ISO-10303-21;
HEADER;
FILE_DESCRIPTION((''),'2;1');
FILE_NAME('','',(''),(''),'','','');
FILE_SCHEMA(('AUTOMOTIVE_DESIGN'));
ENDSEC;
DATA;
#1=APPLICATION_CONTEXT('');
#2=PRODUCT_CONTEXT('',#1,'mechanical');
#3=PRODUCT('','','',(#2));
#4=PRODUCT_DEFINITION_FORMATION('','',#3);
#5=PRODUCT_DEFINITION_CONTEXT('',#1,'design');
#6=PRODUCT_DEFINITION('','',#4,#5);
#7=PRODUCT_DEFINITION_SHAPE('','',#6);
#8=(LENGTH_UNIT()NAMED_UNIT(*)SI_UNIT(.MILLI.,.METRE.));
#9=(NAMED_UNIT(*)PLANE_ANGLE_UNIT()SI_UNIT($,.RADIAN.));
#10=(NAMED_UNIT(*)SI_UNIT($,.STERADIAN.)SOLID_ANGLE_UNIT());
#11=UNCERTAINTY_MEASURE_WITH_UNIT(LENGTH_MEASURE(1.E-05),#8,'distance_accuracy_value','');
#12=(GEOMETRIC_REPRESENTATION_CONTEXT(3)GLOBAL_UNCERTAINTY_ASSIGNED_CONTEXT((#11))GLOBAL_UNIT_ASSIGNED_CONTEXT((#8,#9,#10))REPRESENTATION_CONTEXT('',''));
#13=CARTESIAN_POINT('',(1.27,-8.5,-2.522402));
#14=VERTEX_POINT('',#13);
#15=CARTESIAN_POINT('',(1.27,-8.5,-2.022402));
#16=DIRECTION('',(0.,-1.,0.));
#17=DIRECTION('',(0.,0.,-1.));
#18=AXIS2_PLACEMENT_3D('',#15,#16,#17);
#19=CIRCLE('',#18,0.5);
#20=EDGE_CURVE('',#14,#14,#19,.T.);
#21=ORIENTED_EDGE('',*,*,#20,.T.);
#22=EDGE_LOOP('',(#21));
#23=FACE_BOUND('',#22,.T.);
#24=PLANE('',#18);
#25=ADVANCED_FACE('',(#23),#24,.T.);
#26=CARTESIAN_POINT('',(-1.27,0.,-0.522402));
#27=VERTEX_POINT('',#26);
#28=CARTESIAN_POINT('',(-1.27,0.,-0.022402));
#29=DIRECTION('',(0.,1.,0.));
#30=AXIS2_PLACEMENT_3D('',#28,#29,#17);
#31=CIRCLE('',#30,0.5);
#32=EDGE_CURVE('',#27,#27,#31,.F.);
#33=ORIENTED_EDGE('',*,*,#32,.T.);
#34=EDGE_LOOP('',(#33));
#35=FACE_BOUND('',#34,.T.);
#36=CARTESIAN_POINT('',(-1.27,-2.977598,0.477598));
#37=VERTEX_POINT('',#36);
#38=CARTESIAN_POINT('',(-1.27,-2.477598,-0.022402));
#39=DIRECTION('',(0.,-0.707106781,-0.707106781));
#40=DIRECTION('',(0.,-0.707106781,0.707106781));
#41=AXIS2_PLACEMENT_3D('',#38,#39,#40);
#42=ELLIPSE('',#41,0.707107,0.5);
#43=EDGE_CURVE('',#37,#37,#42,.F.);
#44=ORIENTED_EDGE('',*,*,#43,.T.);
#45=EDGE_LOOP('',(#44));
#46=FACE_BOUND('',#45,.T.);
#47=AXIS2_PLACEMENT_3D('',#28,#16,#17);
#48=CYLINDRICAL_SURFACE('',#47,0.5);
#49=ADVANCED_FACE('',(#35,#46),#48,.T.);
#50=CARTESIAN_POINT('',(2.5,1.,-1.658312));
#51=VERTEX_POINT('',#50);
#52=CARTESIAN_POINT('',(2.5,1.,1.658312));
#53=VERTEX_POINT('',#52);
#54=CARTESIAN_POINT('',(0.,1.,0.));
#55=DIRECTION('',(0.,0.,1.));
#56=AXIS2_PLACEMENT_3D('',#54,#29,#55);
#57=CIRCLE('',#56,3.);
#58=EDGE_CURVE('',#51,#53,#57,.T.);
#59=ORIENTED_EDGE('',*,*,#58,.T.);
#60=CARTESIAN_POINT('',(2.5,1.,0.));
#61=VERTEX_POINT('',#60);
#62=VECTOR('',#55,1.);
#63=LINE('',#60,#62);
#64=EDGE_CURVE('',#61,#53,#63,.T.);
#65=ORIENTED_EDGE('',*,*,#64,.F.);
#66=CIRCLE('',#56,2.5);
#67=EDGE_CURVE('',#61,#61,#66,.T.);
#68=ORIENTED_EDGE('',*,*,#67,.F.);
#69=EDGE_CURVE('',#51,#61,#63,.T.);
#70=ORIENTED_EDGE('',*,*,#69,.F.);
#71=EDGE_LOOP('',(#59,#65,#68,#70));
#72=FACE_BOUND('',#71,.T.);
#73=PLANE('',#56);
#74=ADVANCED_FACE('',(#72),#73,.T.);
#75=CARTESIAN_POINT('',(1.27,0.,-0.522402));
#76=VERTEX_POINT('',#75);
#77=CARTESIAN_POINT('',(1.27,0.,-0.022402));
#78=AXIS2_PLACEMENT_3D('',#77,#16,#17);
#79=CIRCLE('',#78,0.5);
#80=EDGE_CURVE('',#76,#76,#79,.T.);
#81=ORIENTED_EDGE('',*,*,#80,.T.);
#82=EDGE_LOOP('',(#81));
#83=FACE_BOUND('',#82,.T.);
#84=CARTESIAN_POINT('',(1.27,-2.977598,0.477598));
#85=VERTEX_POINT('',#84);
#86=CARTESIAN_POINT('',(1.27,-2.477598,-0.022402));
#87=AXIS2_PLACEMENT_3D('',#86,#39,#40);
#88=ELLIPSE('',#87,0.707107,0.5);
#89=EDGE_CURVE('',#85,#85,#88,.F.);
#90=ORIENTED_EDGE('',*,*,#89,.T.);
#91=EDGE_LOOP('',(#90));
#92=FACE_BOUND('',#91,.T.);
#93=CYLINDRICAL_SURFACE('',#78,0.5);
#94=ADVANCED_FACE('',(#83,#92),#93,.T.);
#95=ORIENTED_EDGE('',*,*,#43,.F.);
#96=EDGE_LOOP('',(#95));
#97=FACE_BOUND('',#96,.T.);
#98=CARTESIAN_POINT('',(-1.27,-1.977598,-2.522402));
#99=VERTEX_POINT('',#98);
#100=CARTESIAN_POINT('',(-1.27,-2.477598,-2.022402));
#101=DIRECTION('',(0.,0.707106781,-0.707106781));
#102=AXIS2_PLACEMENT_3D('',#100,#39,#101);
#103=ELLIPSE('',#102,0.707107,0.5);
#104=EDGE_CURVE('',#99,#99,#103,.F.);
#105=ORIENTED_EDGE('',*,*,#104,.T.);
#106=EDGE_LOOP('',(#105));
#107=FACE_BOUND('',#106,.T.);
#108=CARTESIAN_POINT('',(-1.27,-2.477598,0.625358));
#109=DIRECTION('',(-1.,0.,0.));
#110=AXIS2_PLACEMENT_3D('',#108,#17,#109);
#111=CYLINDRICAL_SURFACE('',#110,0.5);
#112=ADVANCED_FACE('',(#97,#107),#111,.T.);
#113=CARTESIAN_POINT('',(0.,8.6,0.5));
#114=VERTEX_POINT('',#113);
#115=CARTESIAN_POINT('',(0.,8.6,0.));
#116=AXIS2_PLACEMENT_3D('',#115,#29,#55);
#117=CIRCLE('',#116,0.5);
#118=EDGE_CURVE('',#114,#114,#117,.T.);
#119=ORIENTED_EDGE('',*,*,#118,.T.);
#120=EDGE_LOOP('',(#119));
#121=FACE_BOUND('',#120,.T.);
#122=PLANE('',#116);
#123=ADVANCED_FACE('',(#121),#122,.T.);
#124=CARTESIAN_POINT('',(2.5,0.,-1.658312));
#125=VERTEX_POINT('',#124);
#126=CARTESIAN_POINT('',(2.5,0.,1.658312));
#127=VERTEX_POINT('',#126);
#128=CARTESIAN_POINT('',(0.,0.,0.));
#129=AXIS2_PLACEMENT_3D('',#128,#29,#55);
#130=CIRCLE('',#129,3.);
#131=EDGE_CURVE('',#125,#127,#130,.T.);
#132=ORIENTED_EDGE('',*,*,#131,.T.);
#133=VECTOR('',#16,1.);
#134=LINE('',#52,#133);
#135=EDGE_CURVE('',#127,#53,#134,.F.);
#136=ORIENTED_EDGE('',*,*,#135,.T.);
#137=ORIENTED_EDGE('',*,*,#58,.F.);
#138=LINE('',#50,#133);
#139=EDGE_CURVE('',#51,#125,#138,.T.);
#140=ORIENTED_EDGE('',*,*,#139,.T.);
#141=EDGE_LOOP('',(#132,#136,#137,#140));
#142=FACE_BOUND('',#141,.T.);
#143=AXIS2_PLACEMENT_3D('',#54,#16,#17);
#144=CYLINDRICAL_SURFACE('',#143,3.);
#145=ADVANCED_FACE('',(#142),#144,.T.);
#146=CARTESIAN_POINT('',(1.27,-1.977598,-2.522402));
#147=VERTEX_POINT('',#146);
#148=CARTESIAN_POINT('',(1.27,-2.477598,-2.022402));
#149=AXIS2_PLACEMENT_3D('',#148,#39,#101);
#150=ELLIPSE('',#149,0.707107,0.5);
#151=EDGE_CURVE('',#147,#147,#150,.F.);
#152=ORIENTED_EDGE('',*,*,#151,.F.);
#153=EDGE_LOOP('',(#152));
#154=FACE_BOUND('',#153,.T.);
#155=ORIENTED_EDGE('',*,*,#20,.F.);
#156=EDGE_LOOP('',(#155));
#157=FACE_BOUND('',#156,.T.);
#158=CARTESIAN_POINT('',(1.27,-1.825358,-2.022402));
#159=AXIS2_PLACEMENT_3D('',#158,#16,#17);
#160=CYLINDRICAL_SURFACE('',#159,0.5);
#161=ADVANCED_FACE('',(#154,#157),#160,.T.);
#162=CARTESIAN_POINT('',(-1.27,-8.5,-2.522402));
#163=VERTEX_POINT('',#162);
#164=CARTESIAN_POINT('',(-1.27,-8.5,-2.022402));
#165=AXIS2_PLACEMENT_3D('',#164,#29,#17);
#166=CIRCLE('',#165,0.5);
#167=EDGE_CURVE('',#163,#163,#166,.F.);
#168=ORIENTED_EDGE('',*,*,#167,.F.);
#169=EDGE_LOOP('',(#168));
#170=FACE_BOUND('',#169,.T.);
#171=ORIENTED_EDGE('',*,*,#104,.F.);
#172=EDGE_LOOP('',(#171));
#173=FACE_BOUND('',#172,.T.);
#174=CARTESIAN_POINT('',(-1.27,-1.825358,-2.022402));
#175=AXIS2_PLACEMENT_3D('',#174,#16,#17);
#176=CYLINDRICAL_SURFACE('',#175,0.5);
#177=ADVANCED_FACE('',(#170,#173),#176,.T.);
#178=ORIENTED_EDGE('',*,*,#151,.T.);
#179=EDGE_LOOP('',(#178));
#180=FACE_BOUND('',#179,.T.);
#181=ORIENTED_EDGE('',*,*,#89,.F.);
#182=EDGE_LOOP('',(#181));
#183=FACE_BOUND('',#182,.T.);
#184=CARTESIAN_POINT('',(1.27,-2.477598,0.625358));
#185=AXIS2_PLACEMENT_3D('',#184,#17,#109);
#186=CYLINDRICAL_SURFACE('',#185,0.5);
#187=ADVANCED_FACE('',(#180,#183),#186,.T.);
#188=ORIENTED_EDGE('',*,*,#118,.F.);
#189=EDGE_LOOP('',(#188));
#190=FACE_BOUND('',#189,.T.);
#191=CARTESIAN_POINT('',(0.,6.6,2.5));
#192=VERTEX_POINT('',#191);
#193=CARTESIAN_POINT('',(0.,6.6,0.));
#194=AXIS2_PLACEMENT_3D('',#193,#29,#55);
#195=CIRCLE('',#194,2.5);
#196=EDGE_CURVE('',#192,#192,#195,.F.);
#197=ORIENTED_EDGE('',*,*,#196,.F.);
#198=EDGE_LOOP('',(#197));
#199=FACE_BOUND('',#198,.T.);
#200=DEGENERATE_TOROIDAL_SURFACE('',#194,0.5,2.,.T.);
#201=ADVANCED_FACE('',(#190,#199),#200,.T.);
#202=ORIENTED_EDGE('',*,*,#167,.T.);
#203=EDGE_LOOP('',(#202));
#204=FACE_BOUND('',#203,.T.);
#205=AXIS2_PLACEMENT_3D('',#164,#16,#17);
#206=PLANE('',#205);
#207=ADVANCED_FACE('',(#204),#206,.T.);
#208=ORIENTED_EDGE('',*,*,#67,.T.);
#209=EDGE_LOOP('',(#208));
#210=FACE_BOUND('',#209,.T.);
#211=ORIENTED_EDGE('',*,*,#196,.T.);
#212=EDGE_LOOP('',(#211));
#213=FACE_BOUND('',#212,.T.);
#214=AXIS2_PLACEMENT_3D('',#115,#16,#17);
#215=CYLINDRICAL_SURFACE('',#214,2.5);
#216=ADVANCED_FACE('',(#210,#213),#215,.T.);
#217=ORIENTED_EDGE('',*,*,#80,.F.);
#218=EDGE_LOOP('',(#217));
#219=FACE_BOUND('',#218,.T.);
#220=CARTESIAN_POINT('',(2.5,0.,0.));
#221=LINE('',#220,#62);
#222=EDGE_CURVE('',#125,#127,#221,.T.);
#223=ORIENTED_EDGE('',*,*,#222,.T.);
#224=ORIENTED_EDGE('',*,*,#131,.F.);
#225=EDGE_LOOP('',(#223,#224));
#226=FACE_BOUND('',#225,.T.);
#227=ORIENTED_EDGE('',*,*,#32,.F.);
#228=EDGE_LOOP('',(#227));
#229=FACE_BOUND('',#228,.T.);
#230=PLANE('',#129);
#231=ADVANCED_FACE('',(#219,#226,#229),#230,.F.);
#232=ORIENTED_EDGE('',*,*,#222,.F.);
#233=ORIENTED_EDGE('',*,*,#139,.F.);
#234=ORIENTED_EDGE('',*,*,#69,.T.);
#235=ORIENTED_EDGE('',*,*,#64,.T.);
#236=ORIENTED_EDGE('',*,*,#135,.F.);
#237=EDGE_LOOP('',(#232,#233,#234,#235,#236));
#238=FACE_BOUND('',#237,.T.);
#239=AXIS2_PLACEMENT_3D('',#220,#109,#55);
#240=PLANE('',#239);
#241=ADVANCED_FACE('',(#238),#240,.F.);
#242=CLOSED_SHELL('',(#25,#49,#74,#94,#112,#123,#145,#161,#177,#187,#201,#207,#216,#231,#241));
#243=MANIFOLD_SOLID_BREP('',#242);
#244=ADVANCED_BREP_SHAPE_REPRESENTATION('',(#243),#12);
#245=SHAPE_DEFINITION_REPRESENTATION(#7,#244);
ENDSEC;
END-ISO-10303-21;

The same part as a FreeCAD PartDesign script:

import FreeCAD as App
import Part
import Sketcher
from FreeCAD import Vector
Q = App.Units.Quantity


def edges_at(feature, points):
    """Names of the edges that pass closest to the given points."""
    edges = feature.Shape.Edges
    near = lambda p: min(range(len(edges)), key=lambda i: edges[i].distToShape(Part.Vertex(*p))[0])
    return sorted({f"Edge{near(p) + 1}" for p in points})

doc = App.newDocument("Part")
params = doc.addObject("Spreadsheet::Sheet", "Params")
for row, (alias, value) in enumerate([
    ("sketch1_diameter", "6 mm"),
    ("pad1_length", "1 mm"),
    ("sketch2_diameter", "5 mm"),
    ("pad2_length", "7.6 mm"),
    ("fillet_radius", "2 mm"),
    ("sketch3_diameter", "1 mm"),
    ("sketch4_width", "6 mm"),
    ("sketch4_height", "2 mm"),
    ("sketch4_width2", "2.5 mm"),
    ("pocket1_length", "10 mm"),
], start=1):
    params.set(f"A{row}", alias)
    params.set(f"B{row}", "=" + value)
    params.setAlias(f"B{row}", alias)

body = doc.addObject("PartDesign::Body", "Body")

# Sketch on XZ plane
sketch1 = body.newObject("Sketcher::SketchObject", "Sketch")
sketch1.AttachmentSupport = (doc.getObject("XZ_Plane"), [""])
sketch1.MapMode = "FlatFace"
sketch1.addGeometry(Part.Circle(Vector(0, 0, 0), Vector(0, 0, 1), 3), False)
sketch1.addConstraint(Sketcher.Constraint("Coincident", 0, 3, -1, 1))
sketch1.addConstraint(Sketcher.Constraint("Diameter", 0, Q("6 mm")))
sketch1.setExpression("Constraints[1]", "Params.sketch1_diameter")
pad1 = body.newObject("PartDesign::Pad", "Pad")
pad1.Profile = sketch1
pad1.setExpression("Length", "Params.pad1_length")
pad1.Reversed = True

# Sketch on XZ plane
sketch2 = body.newObject("Sketcher::SketchObject", "Sketch001")
sketch2.AttachmentSupport = (doc.getObject("XZ_Plane"), [""])
sketch2.MapMode = "FlatFace"
sketch2.AttachmentOffset = App.Placement(Vector(0, 0, -1), App.Rotation())
sketch2.addGeometry(Part.Circle(Vector(0, 0, 0), Vector(0, 0, 1), 2.5), False)
sketch2.addConstraint(Sketcher.Constraint("Coincident", 0, 3, -1, 1))
sketch2.addConstraint(Sketcher.Constraint("Diameter", 0, Q("5 mm")))
sketch2.setExpression("Constraints[1]", "Params.sketch2_diameter")
pad2 = body.newObject("PartDesign::Pad", "Pad001")
pad2.Profile = sketch2
pad2.setExpression("Length", "Params.pad2_length")
pad2.Reversed = True
doc.recompute()

fillet = body.newObject("PartDesign::Fillet", "Fillet")
fillet.Base = (pad2, edges_at(pad2, [(0, 8.6, 2.5)]))
fillet.setExpression("Radius", "Params.fillet_radius")

# Sketch on XZ plane
sketch3 = body.newObject("Sketcher::SketchObject", "Sketch002")
sketch3.AttachmentSupport = (doc.getObject("XZ_Plane"), [""])
sketch3.MapMode = "FlatFace"
sketch3.addGeometry(Part.Circle(Vector(1.3, 0, 0), Vector(0, 0, 1), 0.5), False)
sketch3.addConstraint(Sketcher.Constraint("Diameter", 0, Q("1 mm")))
sketch3.addConstraint(Sketcher.Constraint("DistanceX", -1, 1, 0, 3, Q("1.27 mm")))
sketch3.addConstraint(Sketcher.Constraint("DistanceY", 0, 3, -1, 1, Q("0.022402 mm")))
sketch3.setExpression("Constraints[0]", "Params.sketch3_diameter")

# Sketch on YZ plane
sketch4 = body.newObject("Sketcher::SketchObject", "Sketch003")
sketch4.AttachmentSupport = (doc.getObject("YZ_Plane"), [""])
sketch4.MapMode = "FlatFace"
sketch4.AttachmentOffset = App.Placement(Vector(0, 0, 1.27), App.Rotation())
sketch4.addGeometry(Part.LineSegment(Vector(0, 0, 0), Vector(-2.5, 0, 0)), False)
sketch4.addGeometry(Part.LineSegment(Vector(-2.5, 0, 0), Vector(-2.5, -2, 0)), False)
sketch4.addGeometry(Part.LineSegment(Vector(-2.5, -2, 0), Vector(-8.5, -2, 0)), False)
sketch4.addConstraint(Sketcher.Constraint("Coincident", 0, 2, 1, 1))
sketch4.addConstraint(Sketcher.Constraint("Coincident", 1, 2, 2, 1))
sketch4.addConstraint(Sketcher.Constraint("Horizontal", 0))
sketch4.addConstraint(Sketcher.Constraint("Vertical", 1))
sketch4.addConstraint(Sketcher.Constraint("Horizontal", 2))
sketch4.addConstraint(Sketcher.Constraint("Coincident", 0, 1, -1, 1))
sketch4.addConstraint(Sketcher.Constraint("DistanceX", 2, 2, 2, 1, Q("6 mm")))
sketch4.addConstraint(Sketcher.Constraint("DistanceY", 1, 2, 1, 1, Q("2 mm")))
sketch4.addConstraint(Sketcher.Constraint("DistanceX", 0, 2, 0, 1, Q("2.5 mm")))
sketch4.setExpression("Constraints[6]", "Params.sketch4_width")
sketch4.setExpression("Constraints[7]", "Params.sketch4_height")
sketch4.setExpression("Constraints[8]", "Params.sketch4_width2")
doc.recompute()

additivepipe = body.newObject("PartDesign::AdditivePipe", "AdditivePipe")
additivepipe.Profile = sketch3
additivepipe.Spine = (sketch4, ["Edge1", "Edge2", "Edge3"])
additivepipe.Transition = "Right corner"
doc.recompute()

mirrored = body.newObject("PartDesign::Mirrored", "Mirrored")
mirrored.Originals = [additivepipe]
mirrored.MirrorPlane = (doc.getObject("YZ_Plane"), [""])
body.Tip = mirrored

# Sketch on YZ plane
sketch5 = body.newObject("Sketcher::SketchObject", "Sketch004")
sketch5.AttachmentSupport = (doc.getObject("YZ_Plane"), [""])
sketch5.MapMode = "FlatFace"
sketch5.AttachmentOffset = App.Placement(Vector(0, 0, 2.5), App.Rotation())
sketch5.addGeometry(Part.LineSegment(Vector(2.9, 2.5, 0), Vector(-1.7, 2.5, 0)), False)
sketch5.addGeometry(Part.LineSegment(Vector(-1.7, 2.5, 0), Vector(-1.7, -2.5, 0)), False)
sketch5.addGeometry(Part.LineSegment(Vector(-1.7, -2.5, 0), Vector(2.9, -2.5, 0)), False)
sketch5.addGeometry(Part.LineSegment(Vector(2.9, -2.5, 0), Vector(2.9, 2.5, 0)), False)
sketch5.addConstraint(Sketcher.Constraint("Coincident", 0, 2, 1, 1))
sketch5.addConstraint(Sketcher.Constraint("Coincident", 1, 2, 2, 1))
sketch5.addConstraint(Sketcher.Constraint("Coincident", 2, 2, 3, 1))
sketch5.addConstraint(Sketcher.Constraint("Coincident", 3, 2, 0, 1))
sketch5.addConstraint(Sketcher.Constraint("Horizontal", 0))
sketch5.addConstraint(Sketcher.Constraint("Vertical", 1))
sketch5.addConstraint(Sketcher.Constraint("Horizontal", 2))
sketch5.addConstraint(Sketcher.Constraint("Vertical", 3))
sketch5.addConstraint(Sketcher.Constraint("DistanceY", 1, 2, -1, 1, Q("2.5 mm")))
sketch5.addConstraint(Sketcher.Constraint("DistanceY", 1, 2, 1, 1, Q("4.95152 mm")))
sketch5.addConstraint(Sketcher.Constraint("DistanceX", 0, 2, 0, 1, Q("4.598066 mm")))
sketch5.addConstraint(Sketcher.Constraint("DistanceX", -1, 1, 2, 2, Q("2.947251 mm")))
pocket1 = body.newObject("PartDesign::Pocket", "Pocket")
pocket1.Profile = sketch5
pocket1.setExpression("Length", "Params.pocket1_length")
pocket1.Reversed = True

doc.recompute()
